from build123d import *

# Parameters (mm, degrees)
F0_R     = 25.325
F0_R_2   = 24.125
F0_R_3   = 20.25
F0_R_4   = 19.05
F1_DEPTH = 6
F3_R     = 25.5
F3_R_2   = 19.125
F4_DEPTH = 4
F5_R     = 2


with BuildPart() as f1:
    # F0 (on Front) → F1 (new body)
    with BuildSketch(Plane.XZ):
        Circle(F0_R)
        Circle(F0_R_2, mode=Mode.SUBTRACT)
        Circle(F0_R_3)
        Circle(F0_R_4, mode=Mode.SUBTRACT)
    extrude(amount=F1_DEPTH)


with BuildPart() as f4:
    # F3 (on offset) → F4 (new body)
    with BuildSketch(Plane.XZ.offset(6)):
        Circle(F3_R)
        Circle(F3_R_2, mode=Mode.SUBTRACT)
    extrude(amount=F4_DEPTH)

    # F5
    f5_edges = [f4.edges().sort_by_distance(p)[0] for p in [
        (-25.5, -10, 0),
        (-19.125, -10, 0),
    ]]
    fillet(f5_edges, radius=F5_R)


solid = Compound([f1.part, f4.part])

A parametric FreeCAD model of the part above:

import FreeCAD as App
import Part
import Sketcher
from FreeCAD import Vector


def edges_at(feature, points):
    """Names of the edges that pass closest to the given points."""
    edges = feature.Shape.Edges
    near = lambda p: min(range(len(edges)), key=lambda i: edges[i].distToShape(Part.Vertex(*p))[0])
    return sorted({f"Edge{near(p) + 1}" for p in points})

doc = App.newDocument("Part")
params = doc.addObject("Spreadsheet::Sheet", "Params")
for row, (alias, value) in enumerate([
    ("sketch1_diameter", "40.5 mm"),
    ("sketch1_diameter2", "38.1 mm"),
    ("sketch1_diameter3", "50.65 mm"),
    ("sketch1_diameter4", "48.25 mm"),
    ("pad1_length", "6 mm"),
    ("sketch2_diameter", "51 mm"),
    ("sketch2_diameter2", "38.25 mm"),
    ("pad2_length", "4 mm"),
    ("fillet_radius", "2 mm"),
], start=1):
    params.set(f"A{row}", alias)
    params.set(f"B{row}", "=" + value)
    params.setAlias(f"B{row}", alias)

body = doc.addObject("PartDesign::Body", "Body")
body.AllowCompound = True

# Sketch on XZ plane
sketch1 = doc.addObject("Sketcher::SketchObject", "Sketch")
body.addObject(sketch1)
sketch1.AttachmentSupport = (doc.XZ_Plane, [""])
sketch1.MapMode = "FlatFace"
sketch1.addGeometry(Part.Circle(Vector(0, 0, 0), Vector(0, 0, 1), 25.325), False)
sketch1.addGeometry(Part.Circle(Vector(0, 0, 0), Vector(0, 0, 1), 24.125), False)
sketch1.addGeometry(Part.Circle(Vector(0, 0, 0), Vector(0, 0, 1), 20.25), False)
sketch1.addGeometry(Part.Circle(Vector(0, 0, 0), Vector(0, 0, 1), 19.05), False)
sketch1.addConstraint(Sketcher.Constraint("Coincident", 0, 3, -1, 1))
sketch1.addConstraint(Sketcher.Constraint("Coincident", 1, 3, -1, 1))
sketch1.addConstraint(Sketcher.Constraint("Coincident", 2, 3, -1, 1))
sketch1.addConstraint(Sketcher.Constraint("Coincident", 3, 3, -1, 1))
sketch1.addConstraint(Sketcher.Constraint("Diameter", 2, 40.5))
sketch1.addConstraint(Sketcher.Constraint("Diameter", 3, 38.1))
sketch1.addConstraint(Sketcher.Constraint("Diameter", 0, 50.65))
sketch1.addConstraint(Sketcher.Constraint("Diameter", 1, 48.25))
sketch1.setExpression("Constraints[4]", "Params.sketch1_diameter")
sketch1.setExpression("Constraints[5]", "Params.sketch1_diameter2")
sketch1.setExpression("Constraints[6]", "Params.sketch1_diameter3")
sketch1.setExpression("Constraints[7]", "Params.sketch1_diameter4")
pad1 = doc.addObject("PartDesign::Pad", "Pad")
body.addObject(pad1)
pad1.Profile = sketch1
pad1.setExpression("Length", "Params.pad1_length")
body2 = doc.addObject("PartDesign::Body", "Body001")

# Sketch on XZ plane
sketch2 = doc.addObject("Sketcher::SketchObject", "Sketch001")
body2.addObject(sketch2)
sketch2.AttachmentSupport = (doc.getObject("XZ_Plane001"), [""])
sketch2.MapMode = "FlatFace"
sketch2.AttachmentOffset = App.Placement(Vector(0, 0, 6), App.Rotation())
sketch2.addGeometry(Part.Circle(Vector(0, 0, 0), Vector(0, 0, 1), 25.5), False)
sketch2.addGeometry(Part.Circle(Vector(0, 0, 0), Vector(0, 0, 1), 19.125), False)
sketch2.addConstraint(Sketcher.Constraint("Coincident", 0, 3, -1, 1))
sketch2.addConstraint(Sketcher.Constraint("Coincident", 1, 3, -1, 1))
sketch2.addConstraint(Sketcher.Constraint("Diameter", 0, 51.0))
sketch2.addConstraint(Sketcher.Constraint("Diameter", 1, 38.25))
sketch2.setExpression("Constraints[2]", "Params.sketch2_diameter")
sketch2.setExpression("Constraints[3]", "Params.sketch2_diameter2")
pad2 = doc.addObject("PartDesign::Pad", "Pad001")
body2.addObject(pad2)
pad2.Profile = sketch2
pad2.setExpression("Length", "Params.pad2_length")
doc.recompute()

fillet = doc.addObject("PartDesign::Fillet", "Fillet")
body2.addObject(fillet)
fillet.Base = (pad2, edges_at(pad2, [(-25.5, -10, 0), (-19.125, -10, 0)]))
fillet.setExpression("Radius", "Params.fillet_radius")

doc.recompute()
